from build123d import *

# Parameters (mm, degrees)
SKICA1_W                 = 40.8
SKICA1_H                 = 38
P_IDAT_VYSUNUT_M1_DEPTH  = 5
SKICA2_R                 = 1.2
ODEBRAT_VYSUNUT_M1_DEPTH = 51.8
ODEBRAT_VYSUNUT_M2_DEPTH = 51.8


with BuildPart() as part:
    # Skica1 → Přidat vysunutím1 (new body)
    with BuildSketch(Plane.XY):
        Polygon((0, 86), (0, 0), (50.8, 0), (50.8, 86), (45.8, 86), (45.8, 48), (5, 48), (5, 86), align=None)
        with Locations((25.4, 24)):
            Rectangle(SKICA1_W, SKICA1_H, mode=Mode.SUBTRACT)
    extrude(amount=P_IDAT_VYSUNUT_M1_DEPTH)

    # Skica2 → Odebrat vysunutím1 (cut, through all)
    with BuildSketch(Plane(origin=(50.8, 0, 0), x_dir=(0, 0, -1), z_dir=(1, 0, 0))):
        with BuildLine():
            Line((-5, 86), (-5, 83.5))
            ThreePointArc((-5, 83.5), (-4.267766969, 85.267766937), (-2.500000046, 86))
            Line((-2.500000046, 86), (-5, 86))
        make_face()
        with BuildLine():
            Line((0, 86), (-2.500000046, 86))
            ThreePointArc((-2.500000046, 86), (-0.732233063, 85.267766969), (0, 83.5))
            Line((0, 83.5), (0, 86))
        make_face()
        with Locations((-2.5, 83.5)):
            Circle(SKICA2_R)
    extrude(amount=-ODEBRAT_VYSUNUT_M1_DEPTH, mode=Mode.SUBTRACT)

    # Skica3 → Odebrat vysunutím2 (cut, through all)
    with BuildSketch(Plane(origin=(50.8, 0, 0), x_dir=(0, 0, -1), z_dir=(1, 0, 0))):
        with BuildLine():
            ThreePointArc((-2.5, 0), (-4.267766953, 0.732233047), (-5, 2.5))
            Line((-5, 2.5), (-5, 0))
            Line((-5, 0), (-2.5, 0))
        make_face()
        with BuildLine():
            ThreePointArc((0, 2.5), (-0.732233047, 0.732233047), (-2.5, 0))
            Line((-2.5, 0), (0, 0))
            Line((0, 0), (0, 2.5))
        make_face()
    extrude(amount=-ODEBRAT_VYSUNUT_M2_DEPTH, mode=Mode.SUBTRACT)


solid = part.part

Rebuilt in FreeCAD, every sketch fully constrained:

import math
import FreeCAD as App
import Part
import Sketcher

doc = App.newDocument("Part")
params = doc.addObject("Spreadsheet::Sheet", "Params")
for row, (alias, value) in enumerate([
    ("sketch1_width", "5 mm"),
    ("sketch1_height", "86 mm"),
    ("sketch1_height2", "38 mm"),
    ("sketch1_width2", "50.8 mm"),
    ("pad1_length", "5 mm"),
    ("sketch2_diameter", "2.4 mm"),
    ("sketch2_radius", "2.5 mm"),
    ("sketch3_radius", "2.5 mm"),
], start=1):
    params.set(f"A{row}", alias)
    params.set(f"B{row}", "=" + value)
    params.setAlias(f"B{row}", alias)

body = doc.addObject("PartDesign::Body", "Body")

# Sketch on XY plane
sketch1 = body.newObject("Sketcher::SketchObject", "Sketch")
sketch1.AttachmentSupport = (doc.getObject("XY_Plane"), [""])
sketch1.MapMode = "FlatFace"
sketch1.addGeometry(Part.LineSegment(App.Vector(0, 86, 0), App.Vector(0, 0, 0)), False)
sketch1.addGeometry(Part.LineSegment(App.Vector(0, 0, 0), App.Vector(50.8, 0, 0)), False)
sketch1.addGeometry(Part.LineSegment(App.Vector(50.8, 0, 0), App.Vector(50.8, 86, 0)), False)
sketch1.addGeometry(Part.LineSegment(App.Vector(50.8, 86, 0), App.Vector(45.8, 86, 0)), False)
sketch1.addGeometry(Part.LineSegment(App.Vector(45.8, 86, 0), App.Vector(45.8, 48, 0)), False)
sketch1.addGeometry(Part.LineSegment(App.Vector(45.8, 48, 0), App.Vector(5, 48, 0)), False)
sketch1.addGeometry(Part.LineSegment(App.Vector(5, 48, 0), App.Vector(5, 86, 0)), False)
sketch1.addGeometry(Part.LineSegment(App.Vector(5, 86, 0), App.Vector(0, 86, 0)), False)
sketch1.addGeometry(Part.LineSegment(App.Vector(45.8, 5, 0), App.Vector(5, 5, 0)), False)
sketch1.addGeometry(Part.LineSegment(App.Vector(5, 5, 0), App.Vector(5, 43, 0)), False)
sketch1.addGeometry(Part.LineSegment(App.Vector(5, 43, 0), App.Vector(45.8, 43, 0)), False)
sketch1.addGeometry(Part.LineSegment(App.Vector(45.8, 43, 0), App.Vector(45.8, 5, 0)), False)
sketch1.addConstraint(Sketcher.Constraint("Coincident", 0, 2, 1, 1))
sketch1.addConstraint(Sketcher.Constraint("Coincident", 1, 2, 2, 1))
sketch1.addConstraint(Sketcher.Constraint("Coincident", 2, 2, 3, 1))
sketch1.addConstraint(Sketcher.Constraint("Coincident", 3, 2, 4, 1))
sketch1.addConstraint(Sketcher.Constraint("Coincident", 4, 2, 5, 1))
sketch1.addConstraint(Sketcher.Constraint("Coincident", 5, 2, 6, 1))
sketch1.addConstraint(Sketcher.Constraint("Coincident", 6, 2, 7, 1))
sketch1.addConstraint(Sketcher.Constraint("Coincident", 7, 2, 0, 1))
sketch1.addConstraint(Sketcher.Constraint("Coincident", 8, 2, 9, 1))
sketch1.addConstraint(Sketcher.Constraint("Coincident", 9, 2, 10, 1))
sketch1.addConstraint(Sketcher.Constraint("Coincident", 10, 2, 11, 1))
sketch1.addConstraint(Sketcher.Constraint("Coincident", 11, 2, 8, 1))
sketch1.addConstraint(Sketcher.Constraint("Vertical", 0))
sketch1.addConstraint(Sketcher.Constraint("Horizontal", 1))
sketch1.addConstraint(Sketcher.Constraint("Vertical", 2))
sketch1.addConstraint(Sketcher.Constraint("Horizontal", 3))
sketch1.addConstraint(Sketcher.Constraint("Vertical", 4))
sketch1.addConstraint(Sketcher.Constraint("Horizontal", 5))
sketch1.addConstraint(Sketcher.Constraint("Vertical", 6))
sketch1.addConstraint(Sketcher.Constraint("Horizontal", 7))
sketch1.addConstraint(Sketcher.Constraint("Horizontal", 8))
sketch1.addConstraint(Sketcher.Constraint("Vertical", 9))
sketch1.addConstraint(Sketcher.Constraint("Horizontal", 10))
sketch1.addConstraint(Sketcher.Constraint("Vertical", 11))
sketch1.addConstraint(Sketcher.Constraint("Coincident", 0, 2, -1, 1))
sketch1.addConstraint(Sketcher.Constraint("Horizontal", 3, 2, 6, 2))
sketch1.addConstraint(Sketcher.Constraint("Vertical", 6, 2, 8, 2))
sketch1.addConstraint(Sketcher.Constraint("Vertical", 4, 2, 10, 2))
sketch1.addConstraint(Sketcher.Constraint("Equal", 3, 7))
sketch1.addConstraint(Sketcher.Constraint("Equal", 6, 9))
sketch1.addConstraint(Sketcher.Constraint("DistanceX", 3, 2, 3, 1, 5.0))
sketch1.addConstraint(Sketcher.Constraint("DistanceY", 0, 2, 0, 1, 86.0))
sketch1.addConstraint(Sketcher.Constraint("DistanceY", 4, 2, 4, 1, 38.0))
sketch1.addConstraint(Sketcher.Constraint("DistanceX", 1, 1, 1, 2, 50.8))
sketch1.addConstraint(Sketcher.Constraint("DistanceY", -1, 1, 8, 2, 5.0))
sketch1.setExpression("Constraints[30]", "Params.sketch1_width")
sketch1.setExpression("Constraints[31]", "Params.sketch1_height")
sketch1.setExpression("Constraints[32]", "Params.sketch1_height2")
sketch1.setExpression("Constraints[33]", "Params.sketch1_width2")
pad1 = body.newObject("PartDesign::Pad", "Pad")
pad1.Profile = sketch1
pad1.setExpression("Length", "Params.pad1_length")

# Sketch on YZ plane
sketch2 = body.newObject("Sketcher::SketchObject", "Sketch001")
sketch2.AttachmentSupport = (doc.getObject("YZ_Plane"), [""])
sketch2.MapMode = "FlatFace"
sketch2.AttachmentOffset = App.Placement(App.Vector(0, 0, 50.8), App.Rotation())
sketch2.addGeometry(Part.LineSegment(App.Vector(86, 5, 0), App.Vector(83.5, 5, 0)), False)
sketch2.addGeometry(Part.ArcOfCircle(Part.Circle(App.Vector(83.5, 2.5, 0), App.Vector(0, 0, 1), 2.5), math.radians(0.000001), math.radians(90)), False)
sketch2.addGeometry(Part.LineSegment(App.Vector(86, 2.5, 0), App.Vector(86, 5, 0)), False)
sketch2.addGeometry(Part.LineSegment(App.Vector(86, 0, 0), App.Vector(86, 2.5, 0)), False)
sketch2.addGeometry(Part.ArcOfCircle(Part.Circle(App.Vector(83.5, 2.5, 0), App.Vector(0, 0, 1), 2.5), math.radians(-90), math.radians(0.000001)), False)
sketch2.addGeometry(Part.LineSegment(App.Vector(83.5, 0, 0), App.Vector(86, 0, 0)), False)
sketch2.addGeometry(Part.Circle(App.Vector(83.5, 2.5, 0), App.Vector(0, 0, 1), 1.2), False)
sketch2.addConstraint(Sketcher.Constraint("Tangent", 0, 2, 1, 2))
sketch2.addConstraint(Sketcher.Constraint("Tangent", 1, 1, 2, 1))
sketch2.addConstraint(Sketcher.Constraint("Coincident", 2, 2, 0, 1))
sketch2.addConstraint(Sketcher.Constraint("Tangent", 3, 2, 4, 2))
sketch2.addConstraint(Sketcher.Constraint("Tangent", 4, 1, 5, 1))
sketch2.addConstraint(Sketcher.Constraint("Coincident", 5, 2, 3, 1))
sketch2.addConstraint(Sketcher.Constraint("Horizontal", 0))
sketch2.addConstraint(Sketcher.Constraint("Vertical", 2))
sketch2.addConstraint(Sketcher.Constraint("Vertical", 3))
sketch2.addConstraint(Sketcher.Constraint("Horizontal", 5))
sketch2.addConstraint(Sketcher.Constraint("Coincident", 4, 3, 1, 3))
sketch2.addConstraint(Sketcher.Constraint("Coincident", 6, 3, 1, 3))
sketch2.addConstraint(Sketcher.Constraint("Equal", 1, 4))
sketch2.addConstraint(Sketcher.Constraint("PointOnObject", 4, 1, -1))
sketch2.addConstraint(Sketcher.Constraint("Diameter", 6, 2.4))
sketch2.addConstraint(Sketcher.Constraint("Radius", 1, 2.5))
sketch2.addConstraint(Sketcher.Constraint("DistanceX", -1, 1, 1, 1, 86.0))
sketch2.setExpression("Constraints[14]", "Params.sketch2_diameter")
sketch2.setExpression("Constraints[15]", "Params.sketch2_radius")
pocket1 = body.newObject("PartDesign::Pocket", "Pocket")
pocket1.Profile = sketch2
pocket1.Type = "ThroughAll"

# Sketch on YZ plane
sketch3 = body.newObject("Sketcher::SketchObject", "Sketch002")
sketch3.AttachmentSupport = (doc.getObject("YZ_Plane"), [""])
sketch3.MapMode = "FlatFace"
sketch3.AttachmentOffset = App.Placement(App.Vector(0, 0, 50.8), App.Rotation())
sketch3.addGeometry(Part.ArcOfCircle(Part.Circle(App.Vector(2.5, 2.5, 0), App.Vector(0, 0, 1), 2.5), math.radians(90), math.radians(180)), False)
sketch3.addGeometry(Part.LineSegment(App.Vector(2.5, 5, 0), App.Vector(0, 5, 0)), False)
sketch3.addGeometry(Part.LineSegment(App.Vector(0, 5, 0), App.Vector(0, 2.5, 0)), False)
sketch3.addGeometry(Part.ArcOfCircle(Part.Circle(App.Vector(2.5, 2.5, 0), App.Vector(0, 0, 1), 2.5), math.radians(180), math.radians(270)), False)
sketch3.addGeometry(Part.LineSegment(App.Vector(0, 2.5, 0), App.Vector(0, 0, 0)), False)
sketch3.addGeometry(Part.LineSegment(App.Vector(0, 0, 0), App.Vector(2.5, 0, 0)), False)
sketch3.addConstraint(Sketcher.Constraint("Tangent", 0, 1, 1, 1))
sketch3.addConstraint(Sketcher.Constraint("Coincident", 1, 2, 2, 1))
sketch3.addConstraint(Sketcher.Constraint("Tangent", 2, 2, 0, 2))
sketch3.addConstraint(Sketcher.Constraint("Tangent", 3, 1, 4, 1))
sketch3.addConstraint(Sketcher.Constraint("Coincident", 4, 2, 5, 1))
sketch3.addConstraint(Sketcher.Constraint("Tangent", 5, 2, 3, 2))
sketch3.addConstraint(Sketcher.Constraint("Horizontal", 1))
sketch3.addConstraint(Sketcher.Constraint("Vertical", 2))
sketch3.addConstraint(Sketcher.Constraint("Vertical", 4))
sketch3.addConstraint(Sketcher.Constraint("Horizontal", 5))
sketch3.addConstraint(Sketcher.Constraint("Coincident", 4, 2, -1, 1))
sketch3.addConstraint(Sketcher.Constraint("Coincident", 3, 3, 0, 3))
sketch3.addConstraint(Sketcher.Constraint("Equal", 0, 3))
sketch3.addConstraint(Sketcher.Constraint("Radius", 0, 2.5))
sketch3.setExpression("Constraints[13]", "Params.sketch3_radius")
pocket2 = body.newObject("PartDesign::Pocket", "Pocket001")
pocket2.Profile = sketch3
pocket2.Type = "ThroughAll"

doc.recompute()
